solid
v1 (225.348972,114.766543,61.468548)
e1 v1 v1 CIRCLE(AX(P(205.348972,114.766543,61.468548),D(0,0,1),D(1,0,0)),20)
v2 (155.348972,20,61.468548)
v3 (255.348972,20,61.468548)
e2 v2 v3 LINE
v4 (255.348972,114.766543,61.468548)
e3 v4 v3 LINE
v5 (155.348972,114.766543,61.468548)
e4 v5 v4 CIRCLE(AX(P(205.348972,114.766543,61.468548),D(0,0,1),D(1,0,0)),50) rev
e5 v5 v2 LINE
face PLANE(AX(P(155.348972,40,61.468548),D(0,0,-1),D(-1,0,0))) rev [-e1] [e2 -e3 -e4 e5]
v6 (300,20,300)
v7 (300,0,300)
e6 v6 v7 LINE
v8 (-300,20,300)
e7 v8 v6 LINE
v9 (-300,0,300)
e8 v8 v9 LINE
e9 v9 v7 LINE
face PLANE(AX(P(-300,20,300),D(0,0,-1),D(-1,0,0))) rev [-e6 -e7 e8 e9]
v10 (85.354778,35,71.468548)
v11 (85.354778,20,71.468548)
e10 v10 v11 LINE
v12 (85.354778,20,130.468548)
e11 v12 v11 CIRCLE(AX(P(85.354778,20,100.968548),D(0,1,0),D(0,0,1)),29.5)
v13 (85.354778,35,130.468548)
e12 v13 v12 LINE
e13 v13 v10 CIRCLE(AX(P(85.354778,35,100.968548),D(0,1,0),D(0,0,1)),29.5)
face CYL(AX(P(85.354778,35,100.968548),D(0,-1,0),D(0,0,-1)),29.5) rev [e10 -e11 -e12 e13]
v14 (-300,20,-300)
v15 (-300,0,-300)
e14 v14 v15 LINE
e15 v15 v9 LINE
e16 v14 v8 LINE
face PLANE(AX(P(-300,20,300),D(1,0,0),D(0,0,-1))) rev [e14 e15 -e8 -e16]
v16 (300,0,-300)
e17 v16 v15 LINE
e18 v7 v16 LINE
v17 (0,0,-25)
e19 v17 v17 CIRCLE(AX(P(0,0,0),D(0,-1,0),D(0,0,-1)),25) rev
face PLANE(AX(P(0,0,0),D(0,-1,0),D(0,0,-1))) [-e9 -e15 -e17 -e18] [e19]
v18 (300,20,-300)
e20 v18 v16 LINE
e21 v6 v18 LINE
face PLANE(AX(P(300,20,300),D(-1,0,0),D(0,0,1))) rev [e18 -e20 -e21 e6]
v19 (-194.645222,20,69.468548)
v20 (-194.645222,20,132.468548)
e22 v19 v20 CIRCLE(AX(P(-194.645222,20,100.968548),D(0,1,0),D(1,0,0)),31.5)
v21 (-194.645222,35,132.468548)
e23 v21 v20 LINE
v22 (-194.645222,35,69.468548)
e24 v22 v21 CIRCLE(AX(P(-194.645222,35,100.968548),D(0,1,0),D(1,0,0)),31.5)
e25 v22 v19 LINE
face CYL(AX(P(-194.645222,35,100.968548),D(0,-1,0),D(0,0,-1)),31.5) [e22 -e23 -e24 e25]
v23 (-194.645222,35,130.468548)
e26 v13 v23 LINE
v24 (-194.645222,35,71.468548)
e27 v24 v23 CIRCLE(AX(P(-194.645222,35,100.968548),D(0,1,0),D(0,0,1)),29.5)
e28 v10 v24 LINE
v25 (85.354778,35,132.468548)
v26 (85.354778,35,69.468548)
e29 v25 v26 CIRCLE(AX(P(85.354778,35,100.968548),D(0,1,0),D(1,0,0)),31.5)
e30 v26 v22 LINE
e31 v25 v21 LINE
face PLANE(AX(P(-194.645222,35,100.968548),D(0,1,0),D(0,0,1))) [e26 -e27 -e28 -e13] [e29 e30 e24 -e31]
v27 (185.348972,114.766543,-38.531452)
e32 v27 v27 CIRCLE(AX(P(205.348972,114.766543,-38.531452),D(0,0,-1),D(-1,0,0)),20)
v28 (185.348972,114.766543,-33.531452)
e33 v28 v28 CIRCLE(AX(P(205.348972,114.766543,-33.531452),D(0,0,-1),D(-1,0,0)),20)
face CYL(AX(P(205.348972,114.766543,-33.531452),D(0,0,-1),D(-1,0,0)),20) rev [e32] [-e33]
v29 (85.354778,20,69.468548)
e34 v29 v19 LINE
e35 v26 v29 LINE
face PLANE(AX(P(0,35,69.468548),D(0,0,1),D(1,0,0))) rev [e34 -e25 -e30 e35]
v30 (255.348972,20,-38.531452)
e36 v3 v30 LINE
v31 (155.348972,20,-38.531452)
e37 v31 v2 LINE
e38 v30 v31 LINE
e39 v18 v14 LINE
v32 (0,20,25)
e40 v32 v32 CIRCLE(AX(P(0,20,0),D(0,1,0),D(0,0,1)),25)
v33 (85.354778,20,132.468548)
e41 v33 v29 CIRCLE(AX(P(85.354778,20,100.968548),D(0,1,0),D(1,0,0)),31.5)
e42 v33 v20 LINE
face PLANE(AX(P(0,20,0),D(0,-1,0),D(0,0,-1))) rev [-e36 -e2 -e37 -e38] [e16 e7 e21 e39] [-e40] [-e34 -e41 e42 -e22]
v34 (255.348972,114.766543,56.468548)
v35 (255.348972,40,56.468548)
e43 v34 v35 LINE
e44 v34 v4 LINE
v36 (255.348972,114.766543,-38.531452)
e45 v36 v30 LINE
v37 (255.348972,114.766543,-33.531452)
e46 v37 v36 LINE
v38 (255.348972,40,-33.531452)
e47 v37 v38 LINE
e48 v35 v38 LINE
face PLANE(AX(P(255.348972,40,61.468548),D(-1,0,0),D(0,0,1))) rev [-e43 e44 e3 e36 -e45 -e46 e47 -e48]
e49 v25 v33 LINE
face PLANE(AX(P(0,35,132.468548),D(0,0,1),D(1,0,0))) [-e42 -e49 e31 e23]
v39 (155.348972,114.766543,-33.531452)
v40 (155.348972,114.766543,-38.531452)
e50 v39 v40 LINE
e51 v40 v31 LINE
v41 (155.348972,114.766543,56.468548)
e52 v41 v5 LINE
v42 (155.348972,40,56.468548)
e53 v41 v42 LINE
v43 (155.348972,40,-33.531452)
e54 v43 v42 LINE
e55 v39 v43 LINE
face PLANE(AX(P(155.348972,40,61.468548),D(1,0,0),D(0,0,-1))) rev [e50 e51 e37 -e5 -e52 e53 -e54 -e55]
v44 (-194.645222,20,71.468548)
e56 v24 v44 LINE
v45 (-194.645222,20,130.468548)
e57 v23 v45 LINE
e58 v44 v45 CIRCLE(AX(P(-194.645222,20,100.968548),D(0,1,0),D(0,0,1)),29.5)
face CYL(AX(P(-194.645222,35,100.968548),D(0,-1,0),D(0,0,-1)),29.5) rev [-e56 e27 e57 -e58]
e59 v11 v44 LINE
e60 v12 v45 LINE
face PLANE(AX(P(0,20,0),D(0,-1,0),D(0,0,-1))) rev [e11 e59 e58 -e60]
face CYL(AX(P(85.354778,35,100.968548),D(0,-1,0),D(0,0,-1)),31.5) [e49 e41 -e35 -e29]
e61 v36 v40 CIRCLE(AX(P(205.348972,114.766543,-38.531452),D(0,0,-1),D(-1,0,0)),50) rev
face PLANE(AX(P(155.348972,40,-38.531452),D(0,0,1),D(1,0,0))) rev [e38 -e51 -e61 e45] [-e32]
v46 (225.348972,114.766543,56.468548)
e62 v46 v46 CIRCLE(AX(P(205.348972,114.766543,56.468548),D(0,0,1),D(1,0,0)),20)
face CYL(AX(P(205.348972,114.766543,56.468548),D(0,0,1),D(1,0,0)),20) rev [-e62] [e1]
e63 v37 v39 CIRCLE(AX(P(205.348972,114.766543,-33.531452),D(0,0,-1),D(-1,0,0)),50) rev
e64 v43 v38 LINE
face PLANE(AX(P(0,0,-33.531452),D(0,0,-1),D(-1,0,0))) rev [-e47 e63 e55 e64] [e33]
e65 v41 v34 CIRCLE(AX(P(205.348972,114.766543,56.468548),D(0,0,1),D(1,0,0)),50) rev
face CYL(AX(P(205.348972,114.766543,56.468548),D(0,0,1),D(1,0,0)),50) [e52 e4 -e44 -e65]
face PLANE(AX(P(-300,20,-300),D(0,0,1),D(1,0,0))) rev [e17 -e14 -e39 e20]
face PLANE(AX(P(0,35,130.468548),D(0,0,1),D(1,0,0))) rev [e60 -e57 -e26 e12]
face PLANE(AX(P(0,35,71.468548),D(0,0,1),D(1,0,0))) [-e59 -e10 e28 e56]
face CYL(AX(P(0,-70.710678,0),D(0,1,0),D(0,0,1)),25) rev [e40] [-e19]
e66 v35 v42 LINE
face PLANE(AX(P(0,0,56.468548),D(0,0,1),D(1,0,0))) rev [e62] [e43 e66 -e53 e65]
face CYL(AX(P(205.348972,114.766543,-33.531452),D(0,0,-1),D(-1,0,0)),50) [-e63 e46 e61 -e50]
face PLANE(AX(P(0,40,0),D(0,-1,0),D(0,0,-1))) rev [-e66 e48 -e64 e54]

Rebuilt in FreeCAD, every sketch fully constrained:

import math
import FreeCAD as App
import Part
import Sketcher
Q = App.Units.Quantity


def add_polygon(sketch, points):
    """Adds a closed chain of lines whose ends are joined by coincident constraints."""
    first, n = sketch.GeometryCount, len(points)
    for a, b in zip(points, points[1:] + points[:1]):
        sketch.addGeometry(Part.LineSegment(App.Vector(*a, 0), App.Vector(*b, 0)), False)
    for i in range(n):
        sketch.addConstraint(Sketcher.Constraint("Coincident", first + i, 2, first + (i + 1) % n, 1))

doc = App.newDocument("Part")
body = doc.addObject("PartDesign::Body", "Body")

# Sketch on XZ plane
sketch1 = body.newObject("Sketcher::SketchObject", "Sketch")
sketch1.AttachmentSupport = (doc.getObject("XZ_Plane"), [""])
sketch1.MapMode = "FlatFace"
add_polygon(sketch1, [(-300, -300), (-300, 300), (300, 300), (300, -300)])  # lines 0-3
sketch1.addConstraint(Sketcher.Constraint("Vertical", 0))
sketch1.addConstraint(Sketcher.Constraint("Horizontal", 1))
sketch1.addConstraint(Sketcher.Constraint("Vertical", 2))
sketch1.addConstraint(Sketcher.Constraint("Horizontal", 3))
sketch1.addConstraint(Sketcher.Constraint("Symmetric", 0, 2, 2, 2, -1, 1))
sketch1.addConstraint(Sketcher.Constraint("Equal", 3, 0))
sketch1.addConstraint(Sketcher.Constraint("DistanceX", 1, 1, 1, 2, Q("600 mm")))
pad1 = body.newObject("PartDesign::Pad", "Pad")
pad1.Profile = sketch1
pad1.Length = 20
pad1.Reversed = True

# Sketch on XZ plane
sketch2 = body.newObject("Sketcher::SketchObject", "Sketch001")
sketch2.AttachmentSupport = (doc.getObject("XZ_Plane"), [""])
sketch2.MapMode = "FlatFace"
sketch2.AttachmentOffset = App.Placement(App.Vector(0, 0, -20), App.Rotation())
add_polygon(sketch2, [(155, -39), (155, 61), (255, 61), (255, -39)])  # lines 0-3
sketch2.addConstraint(Sketcher.Constraint("Vertical", 0))
sketch2.addConstraint(Sketcher.Constraint("Horizontal", 1))
sketch2.addConstraint(Sketcher.Constraint("Vertical", 2))
sketch2.addConstraint(Sketcher.Constraint("Horizontal", 3))
sketch2.addConstraint(Sketcher.Constraint("Equal", 3, 0))
sketch2.addConstraint(Sketcher.Constraint("DistanceX", 1, 1, 1, 2, Q("100 mm")))
sketch2.addConstraint(Sketcher.Constraint("DistanceX", -1, 1, 0, 2, Q("155.348972 mm")))
sketch2.addConstraint(Sketcher.Constraint("DistanceY", -1, 1, 0, 2, Q("61.468548 mm")))
pad2 = body.newObject("PartDesign::Pad", "Pad001")
pad2.Profile = sketch2
pad2.Length = 20
pad2.Reversed = True

# Sketch on XY plane
sketch3 = body.newObject("Sketcher::SketchObject", "Sketch002")
sketch3.AttachmentSupport = (doc.getObject("XY_Plane"), [""])
sketch3.MapMode = "FlatFace"
sketch3.AttachmentOffset = App.Placement(App.Vector(0, 0, 61.468548), App.Rotation())
sketch3.addGeometry(Part.LineSegment(App.Vector(255, 40, 0), App.Vector(255, 115, 0)), False)
sketch3.addGeometry(Part.ArcOfCircle(Part.Circle(App.Vector(205, 115, 0), App.Vector(0, 0, 1), 50), math.radians(0), math.radians(180)), False)
sketch3.addGeometry(Part.LineSegment(App.Vector(155, 115, 0), App.Vector(155, 40, 0)), False)
sketch3.addGeometry(Part.LineSegment(App.Vector(155, 40, 0), App.Vector(255, 40, 0)), False)
sketch3.addGeometry(Part.Circle(App.Vector(205, 115, 0), App.Vector(0, 0, 1), 20), False)
sketch3.addConstraint(Sketcher.Constraint("Tangent", 0, 2, 1, 1))
sketch3.addConstraint(Sketcher.Constraint("Tangent", 1, 2, 2, 1))
sketch3.addConstraint(Sketcher.Constraint("Coincident", 2, 2, 3, 1))
sketch3.addConstraint(Sketcher.Constraint("Coincident", 3, 2, 0, 1))
sketch3.addConstraint(Sketcher.Constraint("Vertical", 0))
sketch3.addConstraint(Sketcher.Constraint("Vertical", 2))
sketch3.addConstraint(Sketcher.Constraint("Horizontal", 3))
sketch3.addConstraint(Sketcher.Constraint("Coincident", 4, 3, 1, 3))
sketch3.addConstraint(Sketcher.Constraint("Diameter", 4, Q("40 mm")))
sketch3.addConstraint(Sketcher.Constraint("Radius", 1, Q("50 mm")))
sketch3.addConstraint(Sketcher.Constraint("DistanceY", -1, 1, 2, 2, Q("40 mm")))
sketch3.addConstraint(Sketcher.Constraint("DistanceY", 0, 1, 0, 2, Q("74.766543 mm")))
sketch3.addConstraint(Sketcher.Constraint("DistanceX", -1, 1, 1, 3, Q("205.348972 mm")))
pad3 = body.newObject("PartDesign::Pad", "Pad002")
pad3.Profile = sketch3
pad3.Length = 5
pad3.Reversed = True

# Sketch on XY plane
sketch4 = body.newObject("Sketcher::SketchObject", "Sketch003")
sketch4.AttachmentSupport = (doc.getObject("XY_Plane"), [""])
sketch4.MapMode = "FlatFace"
sketch4.AttachmentOffset = App.Placement(App.Vector(0, 0, -33.531452), App.Rotation())
sketch4.addGeometry(Part.ArcOfCircle(Part.Circle(App.Vector(205, 115, 0), App.Vector(0, 0, 1), 50), math.radians(0), math.radians(180)), False)
sketch4.addGeometry(Part.LineSegment(App.Vector(255, 115, 0), App.Vector(255, 40, 0)), False)
sketch4.addGeometry(Part.LineSegment(App.Vector(255, 40, 0), App.Vector(155, 40, 0)), False)
sketch4.addGeometry(Part.LineSegment(App.Vector(155, 40, 0), App.Vector(155, 115, 0)), False)
sketch4.addGeometry(Part.Circle(App.Vector(205, 115, 0), App.Vector(0, 0, 1), 20), False)
sketch4.addConstraint(Sketcher.Constraint("Tangent", 0, 1, 1, 1))
sketch4.addConstraint(Sketcher.Constraint("Coincident", 1, 2, 2, 1))
sketch4.addConstraint(Sketcher.Constraint("Coincident", 2, 2, 3, 1))
sketch4.addConstraint(Sketcher.Constraint("Tangent", 3, 2, 0, 2))
sketch4.addConstraint(Sketcher.Constraint("Vertical", 1))
sketch4.addConstraint(Sketcher.Constraint("Horizontal", 2))
sketch4.addConstraint(Sketcher.Constraint("Vertical", 3))
sketch4.addConstraint(Sketcher.Constraint("Coincident", 4, 3, 0, 3))
sketch4.addConstraint(Sketcher.Constraint("Diameter", 4, Q("40 mm")))
sketch4.addConstraint(Sketcher.Constraint("Radius", 0, Q("50 mm")))
sketch4.addConstraint(Sketcher.Constraint("DistanceY", -1, 1, 1, 2, Q("40 mm")))
sketch4.addConstraint(Sketcher.Constraint("DistanceY", 1, 2, 1, 1, Q("74.766543 mm")))
sketch4.addConstraint(Sketcher.Constraint("DistanceX", -1, 1, 0, 3, Q("205.348972 mm")))
pad4 = body.newObject("PartDesign::Pad", "Pad003")
pad4.Profile = sketch4
pad4.Length = 5
pad4.Reversed = True

# Sketch on XZ plane
sketch5 = body.newObject("Sketcher::SketchObject", "Sketch004")
sketch5.AttachmentSupport = (doc.getObject("XZ_Plane"), [""])
sketch5.MapMode = "FlatFace"
sketch5.AttachmentOffset = App.Placement(App.Vector(0, 0, -20), App.Rotation())
sketch5.addGeometry(Part.LineSegment(App.Vector(85, 69, 0), App.Vector(-195, 69, 0)), False)
sketch5.addGeometry(Part.ArcOfCircle(Part.Circle(App.Vector(-195, 101, 0), App.Vector(0, 0, 1), 32), math.radians(90), math.radians(270)), False)
sketch5.addGeometry(Part.LineSegment(App.Vector(-195, 132, 0), App.Vector(85, 132, 0)), False)
sketch5.addGeometry(Part.ArcOfCircle(Part.Circle(App.Vector(85, 101, 0), App.Vector(0, 0, 1), 32), math.radians(-90), math.radians(90)), False)
sketch5.addGeometry(Part.LineSegment(App.Vector(-195, 71, 0), App.Vector(85, 71, 0)), False)
sketch5.addGeometry(Part.ArcOfCircle(Part.Circle(App.Vector(85, 101, 0), App.Vector(0, 0, 1), 30), math.radians(-90), math.radians(90)), False)
sketch5.addGeometry(Part.LineSegment(App.Vector(85, 130, 0), App.Vector(-195, 130, 0)), False)
sketch5.addGeometry(Part.ArcOfCircle(Part.Circle(App.Vector(-195, 101, 0), App.Vector(0, 0, 1), 30), math.radians(90), math.radians(270)), False)
sketch5.addConstraint(Sketcher.Constraint("Tangent", 0, 2, 1, 2))
sketch5.addConstraint(Sketcher.Constraint("Tangent", 1, 1, 2, 1))
sketch5.addConstraint(Sketcher.Constraint("Tangent", 2, 2, 3, 2))
sketch5.addConstraint(Sketcher.Constraint("Tangent", 3, 1, 0, 1))
sketch5.addConstraint(Sketcher.Constraint("Tangent", 4, 2, 5, 1))
sketch5.addConstraint(Sketcher.Constraint("Tangent", 5, 2, 6, 1))
sketch5.addConstraint(Sketcher.Constraint("Tangent", 6, 2, 7, 1))
sketch5.addConstraint(Sketcher.Constraint("Tangent", 7, 2, 4, 1))
sketch5.addConstraint(Sketcher.Constraint("Horizontal", 0))
sketch5.addConstraint(Sketcher.Constraint("Horizontal", 2))
sketch5.addConstraint(Sketcher.Constraint("Horizontal", 4))
sketch5.addConstraint(Sketcher.Constraint("Horizontal", 6))
sketch5.addConstraint(Sketcher.Constraint("Coincident", 5, 3, 3, 3))
sketch5.addConstraint(Sketcher.Constraint("Vertical", 7, 3, 0, 2))
sketch5.addConstraint(Sketcher.Constraint("Radius", 1, Q("31.5 mm")))
sketch5.addConstraint(Sketcher.Constraint("Radius", 5, Q("29.5 mm")))
sketch5.addConstraint(Sketcher.Constraint("DistanceX", 0, 2, 0, 1, Q("280 mm")))
sketch5.addConstraint(Sketcher.Constraint("DistanceX", 1, 3, -1, 1, Q("194.645222 mm")))
sketch5.addConstraint(Sketcher.Constraint("DistanceY", -1, 1, 1, 3, Q("100.968548 mm")))
pad5 = body.newObject("PartDesign::Pad", "Pad004")
pad5.Profile = sketch5
pad5.Length = 15
pad5.Reversed = True

# Sketch on XZ plane
sketch6 = body.newObject("Sketcher::SketchObject", "Sketch005")
sketch6.AttachmentSupport = (doc.getObject("XZ_Plane"), [""])
sketch6.MapMode = "FlatFace"
sketch6.AttachmentOffset = App.Placement(App.Vector(0, 0, -20), App.Rotation())
sketch6.addGeometry(Part.Circle(App.Vector(0, 0, 0), App.Vector(0, 0, 1), 25), False)
sketch6.addConstraint(Sketcher.Constraint("Coincident", 0, 3, -1, 1))
sketch6.addConstraint(Sketcher.Constraint("Diameter", 0, Q("50 mm")))
pocket1 = body.newObject("PartDesign::Pocket", "Pocket")
pocket1.Profile = sketch6
pocket1.Length = 20
pocket1.Reversed = True

doc.recompute()
